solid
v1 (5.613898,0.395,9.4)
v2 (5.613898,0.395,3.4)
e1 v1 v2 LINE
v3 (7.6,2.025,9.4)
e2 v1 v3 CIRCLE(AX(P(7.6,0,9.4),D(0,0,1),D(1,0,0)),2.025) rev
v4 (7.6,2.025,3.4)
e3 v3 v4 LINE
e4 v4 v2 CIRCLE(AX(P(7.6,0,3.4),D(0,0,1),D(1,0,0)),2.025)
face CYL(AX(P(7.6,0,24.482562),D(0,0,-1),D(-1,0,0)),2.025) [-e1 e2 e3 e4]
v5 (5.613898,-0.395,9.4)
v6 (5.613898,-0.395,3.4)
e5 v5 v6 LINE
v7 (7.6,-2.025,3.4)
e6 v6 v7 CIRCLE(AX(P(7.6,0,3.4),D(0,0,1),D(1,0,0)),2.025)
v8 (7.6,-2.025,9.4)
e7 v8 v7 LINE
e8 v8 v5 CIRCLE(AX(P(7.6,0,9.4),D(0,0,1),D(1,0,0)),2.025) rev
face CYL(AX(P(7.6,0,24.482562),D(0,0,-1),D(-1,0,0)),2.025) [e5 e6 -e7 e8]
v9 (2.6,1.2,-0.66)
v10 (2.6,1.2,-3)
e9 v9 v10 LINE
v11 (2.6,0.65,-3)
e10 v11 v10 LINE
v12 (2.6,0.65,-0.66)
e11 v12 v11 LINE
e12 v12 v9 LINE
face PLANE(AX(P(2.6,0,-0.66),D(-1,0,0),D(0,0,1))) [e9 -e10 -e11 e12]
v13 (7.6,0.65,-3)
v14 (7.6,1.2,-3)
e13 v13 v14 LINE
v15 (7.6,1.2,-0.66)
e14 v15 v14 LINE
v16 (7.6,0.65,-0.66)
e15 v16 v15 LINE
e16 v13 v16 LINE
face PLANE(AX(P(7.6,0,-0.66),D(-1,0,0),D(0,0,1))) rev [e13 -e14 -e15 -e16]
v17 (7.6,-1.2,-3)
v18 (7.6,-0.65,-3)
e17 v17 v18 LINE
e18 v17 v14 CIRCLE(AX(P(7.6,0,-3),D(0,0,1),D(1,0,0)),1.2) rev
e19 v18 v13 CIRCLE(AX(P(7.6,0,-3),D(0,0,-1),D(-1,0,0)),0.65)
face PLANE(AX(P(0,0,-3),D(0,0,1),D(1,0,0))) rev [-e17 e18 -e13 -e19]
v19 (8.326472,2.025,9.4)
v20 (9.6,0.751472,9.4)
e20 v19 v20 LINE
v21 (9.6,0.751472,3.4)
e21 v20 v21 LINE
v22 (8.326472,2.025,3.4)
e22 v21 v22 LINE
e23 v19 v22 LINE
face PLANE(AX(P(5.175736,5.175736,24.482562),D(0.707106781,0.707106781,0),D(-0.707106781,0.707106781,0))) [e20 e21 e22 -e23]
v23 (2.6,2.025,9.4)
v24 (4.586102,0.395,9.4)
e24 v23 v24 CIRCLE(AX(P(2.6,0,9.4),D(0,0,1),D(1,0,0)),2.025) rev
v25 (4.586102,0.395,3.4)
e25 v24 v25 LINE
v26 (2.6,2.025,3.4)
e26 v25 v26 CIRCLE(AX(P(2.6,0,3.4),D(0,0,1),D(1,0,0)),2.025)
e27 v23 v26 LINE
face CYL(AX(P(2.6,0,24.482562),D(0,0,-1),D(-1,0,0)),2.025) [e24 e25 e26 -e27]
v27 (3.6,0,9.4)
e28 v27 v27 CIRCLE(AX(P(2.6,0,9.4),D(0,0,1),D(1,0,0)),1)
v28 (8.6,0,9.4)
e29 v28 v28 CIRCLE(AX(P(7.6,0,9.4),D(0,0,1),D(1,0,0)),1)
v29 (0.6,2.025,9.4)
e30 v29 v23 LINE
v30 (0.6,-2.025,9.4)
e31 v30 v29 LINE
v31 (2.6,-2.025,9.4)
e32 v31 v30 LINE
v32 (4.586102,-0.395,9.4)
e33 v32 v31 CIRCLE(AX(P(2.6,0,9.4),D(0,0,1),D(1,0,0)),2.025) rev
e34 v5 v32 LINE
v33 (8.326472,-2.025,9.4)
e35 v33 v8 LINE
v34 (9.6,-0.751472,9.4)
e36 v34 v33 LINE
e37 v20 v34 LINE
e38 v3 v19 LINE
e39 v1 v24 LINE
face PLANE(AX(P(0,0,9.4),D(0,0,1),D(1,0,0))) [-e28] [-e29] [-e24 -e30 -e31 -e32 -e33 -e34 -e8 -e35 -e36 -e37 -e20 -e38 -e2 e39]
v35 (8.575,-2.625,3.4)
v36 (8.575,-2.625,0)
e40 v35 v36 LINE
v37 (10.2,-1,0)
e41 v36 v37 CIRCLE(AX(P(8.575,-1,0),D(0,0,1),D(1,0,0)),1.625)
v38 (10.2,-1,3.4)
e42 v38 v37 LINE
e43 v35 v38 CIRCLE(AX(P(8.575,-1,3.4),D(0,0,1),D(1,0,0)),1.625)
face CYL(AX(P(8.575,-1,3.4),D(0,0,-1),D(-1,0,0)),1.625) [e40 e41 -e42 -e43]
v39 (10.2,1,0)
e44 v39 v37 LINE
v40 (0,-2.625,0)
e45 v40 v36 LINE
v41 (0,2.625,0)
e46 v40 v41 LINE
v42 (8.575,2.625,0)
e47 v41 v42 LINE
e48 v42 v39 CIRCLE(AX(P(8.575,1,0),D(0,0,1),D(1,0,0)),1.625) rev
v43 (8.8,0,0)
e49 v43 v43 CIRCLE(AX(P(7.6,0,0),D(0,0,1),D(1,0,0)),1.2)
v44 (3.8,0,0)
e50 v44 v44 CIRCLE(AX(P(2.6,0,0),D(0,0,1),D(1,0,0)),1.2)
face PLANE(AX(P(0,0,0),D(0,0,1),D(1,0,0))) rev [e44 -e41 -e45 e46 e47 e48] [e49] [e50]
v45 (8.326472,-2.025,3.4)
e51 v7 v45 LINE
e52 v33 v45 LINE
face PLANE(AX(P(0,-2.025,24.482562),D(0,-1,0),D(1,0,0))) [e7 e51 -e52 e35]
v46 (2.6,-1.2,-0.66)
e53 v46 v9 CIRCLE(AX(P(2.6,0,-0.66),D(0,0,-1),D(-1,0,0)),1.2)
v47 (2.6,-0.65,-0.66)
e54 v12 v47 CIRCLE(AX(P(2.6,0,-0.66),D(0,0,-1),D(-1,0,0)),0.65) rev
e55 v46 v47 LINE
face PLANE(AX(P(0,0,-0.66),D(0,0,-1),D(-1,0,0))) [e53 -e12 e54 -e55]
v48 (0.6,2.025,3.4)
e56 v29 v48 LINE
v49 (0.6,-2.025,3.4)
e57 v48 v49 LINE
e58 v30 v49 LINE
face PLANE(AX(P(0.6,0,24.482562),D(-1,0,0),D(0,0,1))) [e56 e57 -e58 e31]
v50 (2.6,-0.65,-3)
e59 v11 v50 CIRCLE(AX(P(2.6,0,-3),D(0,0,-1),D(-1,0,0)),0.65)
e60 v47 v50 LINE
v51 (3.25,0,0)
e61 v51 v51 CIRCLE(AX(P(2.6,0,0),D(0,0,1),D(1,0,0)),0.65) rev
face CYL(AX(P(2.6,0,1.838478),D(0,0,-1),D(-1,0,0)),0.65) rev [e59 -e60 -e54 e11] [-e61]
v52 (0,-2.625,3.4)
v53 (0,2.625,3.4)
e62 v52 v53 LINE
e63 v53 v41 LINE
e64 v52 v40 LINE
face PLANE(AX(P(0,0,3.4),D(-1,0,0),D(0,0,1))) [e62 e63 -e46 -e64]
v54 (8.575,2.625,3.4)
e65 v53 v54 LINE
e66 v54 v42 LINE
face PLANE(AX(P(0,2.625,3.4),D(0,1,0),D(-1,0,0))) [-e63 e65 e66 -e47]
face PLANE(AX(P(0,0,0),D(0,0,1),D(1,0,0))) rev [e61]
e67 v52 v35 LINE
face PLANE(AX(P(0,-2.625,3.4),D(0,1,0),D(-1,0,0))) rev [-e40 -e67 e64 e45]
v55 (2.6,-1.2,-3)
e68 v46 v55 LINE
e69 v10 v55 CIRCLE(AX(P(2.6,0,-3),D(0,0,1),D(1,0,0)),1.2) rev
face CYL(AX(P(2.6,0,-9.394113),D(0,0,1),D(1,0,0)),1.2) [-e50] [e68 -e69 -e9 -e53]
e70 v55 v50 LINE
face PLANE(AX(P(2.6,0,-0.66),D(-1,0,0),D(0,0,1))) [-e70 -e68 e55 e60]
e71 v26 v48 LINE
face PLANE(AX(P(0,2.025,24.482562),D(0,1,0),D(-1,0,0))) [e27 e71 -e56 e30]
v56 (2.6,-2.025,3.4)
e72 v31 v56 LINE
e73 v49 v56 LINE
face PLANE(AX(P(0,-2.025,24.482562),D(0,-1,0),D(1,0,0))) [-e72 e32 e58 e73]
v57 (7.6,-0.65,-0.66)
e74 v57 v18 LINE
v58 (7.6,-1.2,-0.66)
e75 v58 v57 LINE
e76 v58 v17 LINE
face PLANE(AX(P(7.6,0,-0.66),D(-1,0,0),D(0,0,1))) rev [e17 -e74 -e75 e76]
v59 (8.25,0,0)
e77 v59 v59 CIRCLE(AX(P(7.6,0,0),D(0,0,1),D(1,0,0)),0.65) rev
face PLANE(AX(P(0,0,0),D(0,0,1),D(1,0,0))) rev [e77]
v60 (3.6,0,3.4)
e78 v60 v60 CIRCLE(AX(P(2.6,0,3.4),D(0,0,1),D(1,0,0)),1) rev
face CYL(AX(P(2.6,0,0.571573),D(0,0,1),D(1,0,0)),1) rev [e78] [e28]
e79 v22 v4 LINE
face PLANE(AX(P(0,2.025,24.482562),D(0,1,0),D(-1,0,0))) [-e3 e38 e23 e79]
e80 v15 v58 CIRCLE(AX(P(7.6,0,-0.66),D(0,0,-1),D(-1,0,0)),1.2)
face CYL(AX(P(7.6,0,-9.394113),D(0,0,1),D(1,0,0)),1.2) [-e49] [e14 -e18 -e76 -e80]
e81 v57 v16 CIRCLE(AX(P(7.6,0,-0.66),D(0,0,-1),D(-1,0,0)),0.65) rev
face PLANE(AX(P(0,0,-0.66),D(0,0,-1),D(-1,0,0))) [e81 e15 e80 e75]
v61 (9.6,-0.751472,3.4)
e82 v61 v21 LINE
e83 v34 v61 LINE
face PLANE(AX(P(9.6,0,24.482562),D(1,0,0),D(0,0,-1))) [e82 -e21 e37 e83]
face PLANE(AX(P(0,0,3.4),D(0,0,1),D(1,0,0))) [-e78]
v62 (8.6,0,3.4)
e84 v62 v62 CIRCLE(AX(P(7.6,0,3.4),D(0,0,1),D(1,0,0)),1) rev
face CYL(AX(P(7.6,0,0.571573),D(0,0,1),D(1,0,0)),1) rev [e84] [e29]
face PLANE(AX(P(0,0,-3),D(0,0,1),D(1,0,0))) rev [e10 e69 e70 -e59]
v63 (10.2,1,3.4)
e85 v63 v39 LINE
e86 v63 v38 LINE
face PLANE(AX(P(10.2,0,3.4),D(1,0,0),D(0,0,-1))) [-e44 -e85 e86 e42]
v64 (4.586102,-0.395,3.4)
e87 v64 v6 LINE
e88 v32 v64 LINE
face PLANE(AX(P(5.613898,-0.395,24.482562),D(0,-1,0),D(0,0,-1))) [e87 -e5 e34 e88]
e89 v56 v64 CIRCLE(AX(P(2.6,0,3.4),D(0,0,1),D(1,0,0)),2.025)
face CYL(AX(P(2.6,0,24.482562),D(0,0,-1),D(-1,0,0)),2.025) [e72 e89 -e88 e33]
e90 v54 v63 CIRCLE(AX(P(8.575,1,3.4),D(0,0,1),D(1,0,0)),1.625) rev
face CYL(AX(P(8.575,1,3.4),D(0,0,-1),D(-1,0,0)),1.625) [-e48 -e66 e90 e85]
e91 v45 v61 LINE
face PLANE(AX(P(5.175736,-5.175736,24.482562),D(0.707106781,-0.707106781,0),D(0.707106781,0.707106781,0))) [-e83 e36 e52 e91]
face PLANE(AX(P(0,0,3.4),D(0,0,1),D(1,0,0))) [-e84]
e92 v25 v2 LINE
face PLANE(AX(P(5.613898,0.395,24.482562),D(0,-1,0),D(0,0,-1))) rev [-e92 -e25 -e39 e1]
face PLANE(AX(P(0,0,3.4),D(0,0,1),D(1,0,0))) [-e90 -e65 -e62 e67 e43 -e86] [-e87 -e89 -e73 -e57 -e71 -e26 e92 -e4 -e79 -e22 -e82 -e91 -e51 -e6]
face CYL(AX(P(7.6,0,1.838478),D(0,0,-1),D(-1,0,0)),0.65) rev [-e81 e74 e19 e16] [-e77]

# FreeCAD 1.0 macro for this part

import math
import FreeCAD as App
import Part
import Sketcher
from FreeCAD import Vector

doc = App.newDocument("Part")
params = doc.addObject("Spreadsheet::Sheet", "Params")
for row, (alias, value) in enumerate([
    ("sketch1_height", "2 mm"),
    ("pad1_length", "3.4 mm"),
    ("sketch2_width", "2 mm"),
    ("pad2_length", "8.4 mm"),
    ("sketch3_diameter", "2.4 mm"),
    ("pad3_length", "12.4 mm"),
    ("sketch4_diameter", "1.3 mm"),
    ("pocket1_length", "3 mm"),
    ("sketch5_radius", "1.2 mm"),
    ("sketch5_radius2", "0.65 mm"),
    ("pocket2_length", "2.34 mm"),
    ("sketch6_diameter", "2 mm"),
    ("pocket3_length", "6 mm"),
], start=1):
    params.set(f"A{row}", alias)
    params.set(f"B{row}", "=" + value)
    params.setAlias(f"B{row}", alias)

body = doc.addObject("PartDesign::Body", "Body")

# Sketch on XY plane
sketch1 = body.newObject("Sketcher::SketchObject", "Sketch")
sketch1.AttachmentSupport = (doc.getObject("XY_Plane"), [""])
sketch1.MapMode = "FlatFace"
sketch1.addGeometry(Part.LineSegment(Vector(0, 2.6, 0), Vector(0, -2.6, 0)), False)
sketch1.addGeometry(Part.LineSegment(Vector(0, -2.6, 0), Vector(8.6, -2.6, 0)), False)
sketch1.addGeometry(Part.ArcOfCircle(Part.Circle(Vector(8.6, -1, 0), Vector(0, 0, 1), 1.6), math.radians(-90), math.radians(0)), False)
sketch1.addGeometry(Part.LineSegment(Vector(10.2, -1, 0), Vector(10.2, 1, 0)), False)
sketch1.addGeometry(Part.ArcOfCircle(Part.Circle(Vector(8.6, 1, 0), Vector(0, 0, 1), 1.6), math.radians(0), math.radians(90)), False)
sketch1.addGeometry(Part.LineSegment(Vector(8.6, 2.6, 0), Vector(0, 2.6, 0)), False)
sketch1.addConstraint(Sketcher.Constraint("Coincident", 0, 2, 1, 1))
sketch1.addConstraint(Sketcher.Constraint("Tangent", 1, 2, 2, 1))
sketch1.addConstraint(Sketcher.Constraint("Tangent", 2, 2, 3, 1))
sketch1.addConstraint(Sketcher.Constraint("Tangent", 3, 2, 4, 1))
sketch1.addConstraint(Sketcher.Constraint("Tangent", 4, 2, 5, 1))
sketch1.addConstraint(Sketcher.Constraint("Coincident", 5, 2, 0, 1))
sketch1.addConstraint(Sketcher.Constraint("Vertical", 0))
sketch1.addConstraint(Sketcher.Constraint("Horizontal", 1))
sketch1.addConstraint(Sketcher.Constraint("Vertical", 3))
sketch1.addConstraint(Sketcher.Constraint("Horizontal", 5))
sketch1.addConstraint(Sketcher.Constraint("Equal", 2, 4))
sketch1.addConstraint(Sketcher.Constraint("Symmetric", 0, 2, 5, 2, -1, 1))
sketch1.addConstraint(Sketcher.Constraint("DistanceY", 3, 1, 3, 2, 2.0))
sketch1.addConstraint(Sketcher.Constraint("Radius", 2, 1.625))
sketch1.addConstraint(Sketcher.Constraint("DistanceX", -1, 1, 2, 2, 10.2))
sketch1.setExpression("Constraints[12]", "Params.sketch1_height")
pad1 = body.newObject("PartDesign::Pad", "Pad")
pad1.Profile = sketch1
pad1.setExpression("Length", "Params.pad1_length")

# Sketch on XY plane
sketch2 = body.newObject("Sketcher::SketchObject", "Sketch001")
sketch2.AttachmentSupport = (doc.getObject("XY_Plane"), [""])
sketch2.MapMode = "FlatFace"
sketch2.AttachmentOffset = App.Placement(Vector(0, 0, 1), App.Rotation())
sketch2.addGeometry(Part.LineSegment(Vector(5.6, -0.4, 0), Vector(4.6, -0.4, 0)), False)
sketch2.addGeometry(Part.ArcOfCircle(Part.Circle(Vector(2.6, 0, 0), Vector(0, 0, 1), 2), math.radians(-90), math.radians(-11)), False)
sketch2.addGeometry(Part.LineSegment(Vector(2.6, -2, 0), Vector(0.6, -2, 0)), False)
sketch2.addGeometry(Part.LineSegment(Vector(0.6, -2, 0), Vector(0.6, 2, 0)), False)
sketch2.addGeometry(Part.LineSegment(Vector(0.6, 2, 0), Vector(2.6, 2, 0)), False)
sketch2.addGeometry(Part.ArcOfCircle(Part.Circle(Vector(2.6, 0, 0), Vector(0, 0, 1), 2), math.radians(11), math.radians(90)), False)
sketch2.addGeometry(Part.LineSegment(Vector(4.6, 0.4, 0), Vector(5.6, 0.4, 0)), False)
sketch2.addGeometry(Part.ArcOfCircle(Part.Circle(Vector(7.6, 0, 0), Vector(0, 0, 1), 2), math.radians(90), math.radians(169)), False)
sketch2.addGeometry(Part.LineSegment(Vector(7.6, 2, 0), Vector(8.3, 2, 0)), False)
sketch2.addGeometry(Part.LineSegment(Vector(8.3, 2, 0), Vector(9.6, 0.8, 0)), False)
sketch2.addGeometry(Part.LineSegment(Vector(9.6, 0.8, 0), Vector(9.6, -0.8, 0)), False)
sketch2.addGeometry(Part.LineSegment(Vector(9.6, -0.8, 0), Vector(8.3, -2, 0)), False)
sketch2.addGeometry(Part.LineSegment(Vector(8.3, -2, 0), Vector(7.6, -2, 0)), False)
sketch2.addGeometry(Part.ArcOfCircle(Part.Circle(Vector(7.6, 0, 0), Vector(0, 0, 1), 2), math.radians(-169), math.radians(-90)), False)
sketch2.addConstraint(Sketcher.Constraint("Coincident", 0, 2, 1, 2))
sketch2.addConstraint(Sketcher.Constraint("Tangent", 1, 1, 2, 1))
sketch2.addConstraint(Sketcher.Constraint("Coincident", 2, 2, 3, 1))
sketch2.addConstraint(Sketcher.Constraint("Coincident", 3, 2, 4, 1))
sketch2.addConstraint(Sketcher.Constraint("Tangent", 4, 2, 5, 2))
sketch2.addConstraint(Sketcher.Constraint("Coincident", 5, 1, 6, 1))
sketch2.addConstraint(Sketcher.Constraint("Coincident", 6, 2, 7, 2))
sketch2.addConstraint(Sketcher.Constraint("Tangent", 7, 1, 8, 1))
sketch2.addConstraint(Sketcher.Constraint("Coincident", 8, 2, 9, 1))
sketch2.addConstraint(Sketcher.Constraint("Coincident", 9, 2, 10, 1))
sketch2.addConstraint(Sketcher.Constraint("Coincident", 10, 2, 11, 1))
sketch2.addConstraint(Sketcher.Constraint("Coincident", 11, 2, 12, 1))
sketch2.addConstraint(Sketcher.Constraint("Tangent", 12, 2, 13, 2))
sketch2.addConstraint(Sketcher.Constraint("Coincident", 13, 1, 0, 1))
sketch2.addConstraint(Sketcher.Constraint("Horizontal", 0))
sketch2.addConstraint(Sketcher.Constraint("Horizontal", 2))
sketch2.addConstraint(Sketcher.Constraint("Vertical", 3))
sketch2.addConstraint(Sketcher.Constraint("Horizontal", 4))
sketch2.addConstraint(Sketcher.Constraint("Horizontal", 6))
sketch2.addConstraint(Sketcher.Constraint("Horizontal", 8))
sketch2.addConstraint(Sketcher.Constraint("Vertical", 10))
sketch2.addConstraint(Sketcher.Constraint("Horizontal", 12))
sketch2.addConstraint(Sketcher.Constraint("Coincident", 5, 3, 1, 3))
sketch2.addConstraint(Sketcher.Constraint("Coincident", 13, 3, 7, 3))
sketch2.addConstraint(Sketcher.Constraint("Equal", 1, 5))
sketch2.addConstraint(Sketcher.Constraint("Equal", 5, 7))
sketch2.addConstraint(Sketcher.Constraint("Equal", 7, 13))
sketch2.addConstraint(Sketcher.Constraint("Symmetric", 0, 2, 5, 1, -1))
sketch2.addConstraint(Sketcher.Constraint("Symmetric", 8, 2, 11, 2, -1))
sketch2.addConstraint(Sketcher.Constraint("Perpendicular", 9, 11))
sketch2.addConstraint(Sketcher.Constraint("Equal", 9, 11))
sketch2.addConstraint(Sketcher.Constraint("DistanceX", 2, 2, 2, 1, 2.0))
sketch2.addConstraint(Sketcher.Constraint("Radius", 1, 2.025))
sketch2.addConstraint(Sketcher.Constraint("DistanceX", 1, 3, 7, 3, 5.0))
sketch2.addConstraint(Sketcher.Constraint("DistanceX", 7, 3, 9, 2, 2.0))
sketch2.addConstraint(Sketcher.Constraint("DistanceX", -1, 1, 1, 3, 2.6))
sketch2.addConstraint(Sketcher.Constraint("DistanceY", 1, 1, 0, 2, 1.63))
sketch2.addConstraint(Sketcher.Constraint("DistanceX", 8, 1, 8, 2, 0.726472))
sketch2.setExpression("Constraints[31]", "Params.sketch2_width")
pad2 = body.newObject("PartDesign::Pad", "Pad001")
pad2.Profile = sketch2
pad2.setExpression("Length", "Params.pad2_length")

# Sketch on XY plane
sketch3 = body.newObject("Sketcher::SketchObject", "Sketch002")
sketch3.AttachmentSupport = (doc.getObject("XY_Plane"), [""])
sketch3.MapMode = "FlatFace"
sketch3.AttachmentOffset = App.Placement(Vector(0, 0, 9.4), App.Rotation())
sketch3.addGeometry(Part.Circle(Vector(7.6, 0, 0), Vector(0, 0, 1), 1.2), False)
sketch3.addGeometry(Part.Circle(Vector(2.6, 0, 0), Vector(0, 0, 1), 1.2), False)
sketch3.addConstraint(Sketcher.Constraint("Equal", 0, 1))
sketch3.addConstraint(Sketcher.Constraint("PointOnObject", 0, 3, -1))
sketch3.addConstraint(Sketcher.Constraint("PointOnObject", 1, 3, -1))
sketch3.addConstraint(Sketcher.Constraint("Diameter", 0, 2.4))
sketch3.addConstraint(Sketcher.Constraint("DistanceX", 1, 3, 0, 3, 5.0))
sketch3.addConstraint(Sketcher.Constraint("DistanceX", -1, 1, 0, 3, 7.6))
sketch3.setExpression("Constraints[3]", "Params.sketch3_diameter")
pad3 = body.newObject("PartDesign::Pad", "Pad002")
pad3.Profile = sketch3
pad3.setExpression("Length", "Params.pad3_length")
pad3.Reversed = True

# Sketch on XY plane
sketch4 = body.newObject("Sketcher::SketchObject", "Sketch003")
sketch4.AttachmentSupport = (doc.getObject("XY_Plane"), [""])
sketch4.MapMode = "FlatFace"
sketch4.AttachmentOffset = App.Placement(Vector(0, 0, -3), App.Rotation())
sketch4.addGeometry(Part.Circle(Vector(7.6, 0, 0), Vector(0, 0, 1), 0.7), False)
sketch4.addGeometry(Part.Circle(Vector(2.6, 0, 0), Vector(0, 0, 1), 0.7), False)
sketch4.addConstraint(Sketcher.Constraint("Equal", 0, 1))
sketch4.addConstraint(Sketcher.Constraint("PointOnObject", 0, 3, -1))
sketch4.addConstraint(Sketcher.Constraint("PointOnObject", 1, 3, -1))
sketch4.addConstraint(Sketcher.Constraint("Diameter", 0, 1.3))
sketch4.addConstraint(Sketcher.Constraint("DistanceX", 1, 3, 0, 3, 5.0))
sketch4.addConstraint(Sketcher.Constraint("DistanceX", -1, 1, 0, 3, 7.6))
sketch4.setExpression("Constraints[3]", "Params.sketch4_diameter")
pocket1 = body.newObject("PartDesign::Pocket", "Pocket")
pocket1.Profile = sketch4
pocket1.setExpression("Length", "Params.pocket1_length")
pocket1.Reversed = True

# Sketch on XY plane
sketch5 = body.newObject("Sketcher::SketchObject", "Sketch004")
sketch5.AttachmentSupport = (doc.getObject("XY_Plane"), [""])
sketch5.MapMode = "FlatFace"
sketch5.AttachmentOffset = App.Placement(Vector(0, 0, -0.66), App.Rotation())
sketch5.addGeometry(Part.LineSegment(Vector(2.6, -0.7, 0), Vector(2.6, -1.2, 0)), False)
sketch5.addGeometry(Part.ArcOfCircle(Part.Circle(Vector(2.6, 0, 0), Vector(0, 0, 1), 1.2), math.radians(-180), math.radians(-90)), False)
sketch5.addGeometry(Part.ArcOfCircle(Part.Circle(Vector(2.6, 0, 0), Vector(0, 0, 1), 1.2), math.radians(90), math.radians(180)), False)
sketch5.addGeometry(Part.LineSegment(Vector(2.6, 1.2, 0), Vector(2.6, 0.7, 0)), False)
sketch5.addGeometry(Part.ArcOfCircle(Part.Circle(Vector(2.6, 0, 0), Vector(0, 0, 1), 0.6), math.radians(90), math.radians(180)), False)
sketch5.addGeometry(Part.ArcOfCircle(Part.Circle(Vector(2.6, 0, 0), Vector(0, 0, 1), 0.6), math.radians(180), math.radians(270)), False)
sketch5.addGeometry(Part.ArcOfCircle(Part.Circle(Vector(7.6, 0, 0), Vector(0, 0, 1), 1.2), math.radians(-90), math.radians(90)), False)
sketch5.addGeometry(Part.LineSegment(Vector(7.6, -1.2, 0), Vector(7.6, 1.2, 0)), False)
sketch5.addConstraint(Sketcher.Constraint("Coincident", 0, 2, 1, 2))
sketch5.addConstraint(Sketcher.Constraint("Tangent", 1, 1, 2, 2))
sketch5.addConstraint(Sketcher.Constraint("Coincident", 2, 1, 3, 1))
sketch5.addConstraint(Sketcher.Constraint("Coincident", 3, 2, 4, 1))
sketch5.addConstraint(Sketcher.Constraint("Tangent", 4, 2, 5, 1))
sketch5.addConstraint(Sketcher.Constraint("Coincident", 5, 2, 0, 1))
sketch5.addConstraint(Sketcher.Constraint("Coincident", 6, 1, 7, 1))
sketch5.addConstraint(Sketcher.Constraint("Coincident", 7, 2, 6, 2))
sketch5.addConstraint(Sketcher.Constraint("Vertical", 0))
sketch5.addConstraint(Sketcher.Constraint("Vertical", 3))
sketch5.addConstraint(Sketcher.Constraint("Vertical", 7))
sketch5.addConstraint(Sketcher.Constraint("Coincident", 4, 3, 1, 3))
sketch5.addConstraint(Sketcher.Constraint("Equal", 1, 2))
sketch5.addConstraint(Sketcher.Constraint("Equal", 4, 5))
sketch5.addConstraint(Sketcher.Constraint("Equal", 2, 6))
sketch5.addConstraint(Sketcher.Constraint("Symmetric", 0, 2, 2, 1, -1))
sketch5.addConstraint(Sketcher.Constraint("PointOnObject", 6, 3, -1))
sketch5.addConstraint(Sketcher.Constraint("PointOnObject", 1, 1, -1))
sketch5.addConstraint(Sketcher.Constraint("PointOnObject", 4, 2, -1))
sketch5.addConstraint(Sketcher.Constraint("Vertical", 5, 3, 0, 2))
sketch5.addConstraint(Sketcher.Constraint("Radius", 1, 1.2))
sketch5.addConstraint(Sketcher.Constraint("Radius", 4, 0.65))
sketch5.addConstraint(Sketcher.Constraint("DistanceX", 1, 3, 6, 3, 5.0))
sketch5.addConstraint(Sketcher.Constraint("DistanceX", 0, 2, 6, 1, 5.0))
sketch5.addConstraint(Sketcher.Constraint("DistanceX", -1, 1, 1, 3, 2.6))
sketch5.setExpression("Constraints[20]", "Params.sketch5_radius")
sketch5.setExpression("Constraints[21]", "Params.sketch5_radius2")
pocket2 = body.newObject("PartDesign::Pocket", "Pocket001")
pocket2.Profile = sketch5
pocket2.setExpression("Length", "Params.pocket2_length")

# Sketch on XY plane
sketch6 = body.newObject("Sketcher::SketchObject", "Sketch005")
sketch6.AttachmentSupport = (doc.getObject("XY_Plane"), [""])
sketch6.MapMode = "FlatFace"
sketch6.AttachmentOffset = App.Placement(Vector(0, 0, 9.4), App.Rotation())
sketch6.addGeometry(Part.Circle(Vector(7.6, 0, 0), Vector(0, 0, 1), 1), False)
sketch6.addGeometry(Part.Circle(Vector(2.6, 0, 0), Vector(0, 0, 1), 1), False)
sketch6.addConstraint(Sketcher.Constraint("Equal", 0, 1))
sketch6.addConstraint(Sketcher.Constraint("PointOnObject", 0, 3, -1))
sketch6.addConstraint(Sketcher.Constraint("PointOnObject", 1, 3, -1))
sketch6.addConstraint(Sketcher.Constraint("Diameter", 0, 2.0))
sketch6.addConstraint(Sketcher.Constraint("DistanceX", 1, 3, 0, 3, 5.0))
sketch6.addConstraint(Sketcher.Constraint("DistanceX", -1, 1, 0, 3, 7.6))
sketch6.setExpression("Constraints[3]", "Params.sketch6_diameter")
pocket3 = body.newObject("PartDesign::Pocket", "Pocket002")
pocket3.Profile = sketch6
pocket3.setExpression("Length", "Params.pocket3_length")

doc.recompute()
